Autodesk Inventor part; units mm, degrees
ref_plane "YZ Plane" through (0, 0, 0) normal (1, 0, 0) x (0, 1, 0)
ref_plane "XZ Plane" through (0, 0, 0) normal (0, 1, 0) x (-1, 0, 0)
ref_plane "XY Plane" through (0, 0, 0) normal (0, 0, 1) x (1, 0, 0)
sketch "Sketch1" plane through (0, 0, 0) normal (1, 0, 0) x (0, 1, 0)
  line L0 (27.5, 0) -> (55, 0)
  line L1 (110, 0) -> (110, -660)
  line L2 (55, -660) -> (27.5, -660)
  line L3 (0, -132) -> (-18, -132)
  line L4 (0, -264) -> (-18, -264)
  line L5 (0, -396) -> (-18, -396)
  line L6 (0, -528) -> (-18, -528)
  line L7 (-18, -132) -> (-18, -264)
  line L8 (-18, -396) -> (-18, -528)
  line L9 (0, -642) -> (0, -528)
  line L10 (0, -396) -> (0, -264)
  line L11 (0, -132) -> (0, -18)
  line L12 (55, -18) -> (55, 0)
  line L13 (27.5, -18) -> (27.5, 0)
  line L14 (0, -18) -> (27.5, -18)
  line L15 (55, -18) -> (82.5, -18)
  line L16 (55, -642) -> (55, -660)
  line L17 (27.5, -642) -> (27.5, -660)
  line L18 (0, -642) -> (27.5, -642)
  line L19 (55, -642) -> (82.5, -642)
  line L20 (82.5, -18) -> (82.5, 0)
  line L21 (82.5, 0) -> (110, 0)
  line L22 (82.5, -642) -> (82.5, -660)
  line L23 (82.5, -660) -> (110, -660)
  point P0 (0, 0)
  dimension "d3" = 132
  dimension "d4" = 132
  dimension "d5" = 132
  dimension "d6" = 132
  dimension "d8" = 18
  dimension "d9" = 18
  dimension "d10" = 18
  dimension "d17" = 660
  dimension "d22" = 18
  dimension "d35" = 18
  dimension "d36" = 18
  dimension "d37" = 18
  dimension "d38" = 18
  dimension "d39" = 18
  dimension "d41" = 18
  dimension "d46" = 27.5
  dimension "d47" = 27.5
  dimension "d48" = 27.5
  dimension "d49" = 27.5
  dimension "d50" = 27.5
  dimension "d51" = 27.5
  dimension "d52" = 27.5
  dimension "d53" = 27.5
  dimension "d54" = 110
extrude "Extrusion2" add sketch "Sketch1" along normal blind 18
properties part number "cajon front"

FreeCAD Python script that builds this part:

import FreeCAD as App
import Part
import Sketcher
from FreeCAD import Vector

doc = App.newDocument("Part")
body = doc.addObject("PartDesign::Body", "Body")

# Sketch on YZ plane
sketch1 = body.newObject("Sketcher::SketchObject", "Sketch")
sketch1.AttachmentSupport = (doc.getObject("YZ_Plane"), [""])
sketch1.MapMode = "FlatFace"
sketch1.addGeometry([
    Part.LineSegment(Vector(55, 0, 0), Vector(27.5, 0, 0)),  # 0
    Part.LineSegment(Vector(27.5, 0, 0), Vector(27.5, -18, 0)),  # 1
    Part.LineSegment(Vector(27.5, -18, 0), Vector(0, -18, 0)),  # 2
    Part.LineSegment(Vector(0, -18, 0), Vector(0, -132, 0)),  # 3
    Part.LineSegment(Vector(0, -132, 0), Vector(-18, -132, 0)),  # 4
    Part.LineSegment(Vector(-18, -132, 0), Vector(-18, -264, 0)),  # 5
    Part.LineSegment(Vector(-18, -264, 0), Vector(0, -264, 0)),  # 6
    Part.LineSegment(Vector(0, -264, 0), Vector(0, -396, 0)),  # 7
    Part.LineSegment(Vector(0, -396, 0), Vector(-18, -396, 0)),  # 8
    Part.LineSegment(Vector(-18, -396, 0), Vector(-18, -528, 0)),  # 9
    Part.LineSegment(Vector(-18, -528, 0), Vector(0, -528, 0)),  # 10
    Part.LineSegment(Vector(0, -528, 0), Vector(0, -642, 0)),  # 11
    Part.LineSegment(Vector(0, -642, 0), Vector(27.5, -642, 0)),  # 12
    Part.LineSegment(Vector(27.5, -642, 0), Vector(27.5, -660, 0)),  # 13
    Part.LineSegment(Vector(27.5, -660, 0), Vector(55, -660, 0)),  # 14
    Part.LineSegment(Vector(55, -660, 0), Vector(55, -642, 0)),  # 15
    Part.LineSegment(Vector(55, -642, 0), Vector(82.5, -642, 0)),  # 16
    Part.LineSegment(Vector(82.5, -642, 0), Vector(82.5, -660, 0)),  # 17
    Part.LineSegment(Vector(82.5, -660, 0), Vector(110, -660, 0)),  # 18
    Part.LineSegment(Vector(110, -660, 0), Vector(110, 0, 0)),  # 19
    Part.LineSegment(Vector(110, 0, 0), Vector(82.5, 0, 0)),  # 20
    Part.LineSegment(Vector(82.5, 0, 0), Vector(82.5, -18, 0)),  # 21
    Part.LineSegment(Vector(82.5, -18, 0), Vector(55, -18, 0)),  # 22
    Part.LineSegment(Vector(55, -18, 0), Vector(55, 0, 0)),  # 23
], False)
sketch1.addConstraint([
    Sketcher.Constraint("Coincident", 0, 2, 1, 1),
    Sketcher.Constraint("Coincident", 1, 2, 2, 1),
    Sketcher.Constraint("Coincident", 2, 2, 3, 1),
    Sketcher.Constraint("Coincident", 3, 2, 4, 1),
    Sketcher.Constraint("Coincident", 4, 2, 5, 1),
    Sketcher.Constraint("Coincident", 5, 2, 6, 1),
    Sketcher.Constraint("Coincident", 6, 2, 7, 1),
    Sketcher.Constraint("Coincident", 7, 2, 8, 1),
    Sketcher.Constraint("Coincident", 8, 2, 9, 1),
    Sketcher.Constraint("Coincident", 9, 2, 10, 1),
    Sketcher.Constraint("Coincident", 10, 2, 11, 1),
    Sketcher.Constraint("Coincident", 11, 2, 12, 1),
    Sketcher.Constraint("Coincident", 12, 2, 13, 1),
    Sketcher.Constraint("Coincident", 13, 2, 14, 1),
    Sketcher.Constraint("Coincident", 14, 2, 15, 1),
    Sketcher.Constraint("Coincident", 15, 2, 16, 1),
    Sketcher.Constraint("Coincident", 16, 2, 17, 1),
    Sketcher.Constraint("Coincident", 17, 2, 18, 1),
    Sketcher.Constraint("Coincident", 18, 2, 19, 1),
    Sketcher.Constraint("Coincident", 19, 2, 20, 1),
    Sketcher.Constraint("Coincident", 20, 2, 21, 1),
    Sketcher.Constraint("Coincident", 21, 2, 22, 1),
    Sketcher.Constraint("Coincident", 22, 2, 23, 1),
    Sketcher.Constraint("Coincident", 23, 2, 0, 1),
    Sketcher.Constraint("Horizontal", 0),
    Sketcher.Constraint("Vertical", 1),
    Sketcher.Constraint("Horizontal", 2),
    Sketcher.Constraint("Vertical", 3),
    Sketcher.Constraint("Horizontal", 4),
    Sketcher.Constraint("Vertical", 5),
    Sketcher.Constraint("Horizontal", 6),
    Sketcher.Constraint("Vertical", 7),
    Sketcher.Constraint("Horizontal", 8),
    Sketcher.Constraint("Vertical", 9),
    Sketcher.Constraint("Horizontal", 10),
    Sketcher.Constraint("Vertical", 11),
    Sketcher.Constraint("Horizontal", 12),
    Sketcher.Constraint("Vertical", 13),
    Sketcher.Constraint("Horizontal", 14),
    Sketcher.Constraint("Vertical", 15),
    Sketcher.Constraint("Horizontal", 16),
    Sketcher.Constraint("Vertical", 17),
    Sketcher.Constraint("Horizontal", 18),
    Sketcher.Constraint("Vertical", 19),
    Sketcher.Constraint("Horizontal", 20),
    Sketcher.Constraint("Vertical", 21),
    Sketcher.Constraint("Horizontal", 22),
    Sketcher.Constraint("Vertical", 23),
    Sketcher.Constraint("PointOnObject", 0, 2, -1),
    Sketcher.Constraint("PointOnObject", 2, 2, -2),
    Sketcher.Constraint("PointOnObject", 6, 2, -2),
    Sketcher.Constraint("PointOnObject", 10, 2, -2),
    Sketcher.Constraint("PointOnObject", 19, 2, -1),
    Sketcher.Constraint("Horizontal", 12, 2, 15, 2),
    Sketcher.Constraint("Horizontal", 14, 2, 17, 2),
    Sketcher.Constraint("Horizontal", 2, 2, 21, 2),
    Sketcher.Constraint("Vertical", 5, 2, 8, 2),
    Sketcher.Constraint("Vertical", 1, 2, 12, 2),
    Sketcher.Constraint("Vertical", 17, 2, 20, 2),
    Sketcher.Constraint("Vertical", 15, 2, 22, 2),
    Sketcher.Constraint("Equal", 0, 2),
    Sketcher.Constraint("Equal", 14, 16),
    Sketcher.Constraint("Equal", 16, 18),
    Sketcher.Constraint("Equal", 10, 1),
    Sketcher.Constraint("Equal", 5, 7),
    Sketcher.Constraint("Equal", 7, 9),
    Sketcher.Constraint("Equal", 3, 11),
    Sketcher.Constraint("Equal", 1, 13),
    Sketcher.Constraint("DistanceX", 4, 2, 4, 1, 18.0),
    Sketcher.Constraint("DistanceY", 5, 2, 5, 1, 132.0),
    Sketcher.Constraint("DistanceY", 19, 1, 19, 2, 660.0),
    Sketcher.Constraint("DistanceX", 0, 2, 0, 1, 27.5),
])
pad1 = body.newObject("PartDesign::Pad", "Pad")
pad1.Profile = sketch1
pad1.Length = 18

doc.recompute()
